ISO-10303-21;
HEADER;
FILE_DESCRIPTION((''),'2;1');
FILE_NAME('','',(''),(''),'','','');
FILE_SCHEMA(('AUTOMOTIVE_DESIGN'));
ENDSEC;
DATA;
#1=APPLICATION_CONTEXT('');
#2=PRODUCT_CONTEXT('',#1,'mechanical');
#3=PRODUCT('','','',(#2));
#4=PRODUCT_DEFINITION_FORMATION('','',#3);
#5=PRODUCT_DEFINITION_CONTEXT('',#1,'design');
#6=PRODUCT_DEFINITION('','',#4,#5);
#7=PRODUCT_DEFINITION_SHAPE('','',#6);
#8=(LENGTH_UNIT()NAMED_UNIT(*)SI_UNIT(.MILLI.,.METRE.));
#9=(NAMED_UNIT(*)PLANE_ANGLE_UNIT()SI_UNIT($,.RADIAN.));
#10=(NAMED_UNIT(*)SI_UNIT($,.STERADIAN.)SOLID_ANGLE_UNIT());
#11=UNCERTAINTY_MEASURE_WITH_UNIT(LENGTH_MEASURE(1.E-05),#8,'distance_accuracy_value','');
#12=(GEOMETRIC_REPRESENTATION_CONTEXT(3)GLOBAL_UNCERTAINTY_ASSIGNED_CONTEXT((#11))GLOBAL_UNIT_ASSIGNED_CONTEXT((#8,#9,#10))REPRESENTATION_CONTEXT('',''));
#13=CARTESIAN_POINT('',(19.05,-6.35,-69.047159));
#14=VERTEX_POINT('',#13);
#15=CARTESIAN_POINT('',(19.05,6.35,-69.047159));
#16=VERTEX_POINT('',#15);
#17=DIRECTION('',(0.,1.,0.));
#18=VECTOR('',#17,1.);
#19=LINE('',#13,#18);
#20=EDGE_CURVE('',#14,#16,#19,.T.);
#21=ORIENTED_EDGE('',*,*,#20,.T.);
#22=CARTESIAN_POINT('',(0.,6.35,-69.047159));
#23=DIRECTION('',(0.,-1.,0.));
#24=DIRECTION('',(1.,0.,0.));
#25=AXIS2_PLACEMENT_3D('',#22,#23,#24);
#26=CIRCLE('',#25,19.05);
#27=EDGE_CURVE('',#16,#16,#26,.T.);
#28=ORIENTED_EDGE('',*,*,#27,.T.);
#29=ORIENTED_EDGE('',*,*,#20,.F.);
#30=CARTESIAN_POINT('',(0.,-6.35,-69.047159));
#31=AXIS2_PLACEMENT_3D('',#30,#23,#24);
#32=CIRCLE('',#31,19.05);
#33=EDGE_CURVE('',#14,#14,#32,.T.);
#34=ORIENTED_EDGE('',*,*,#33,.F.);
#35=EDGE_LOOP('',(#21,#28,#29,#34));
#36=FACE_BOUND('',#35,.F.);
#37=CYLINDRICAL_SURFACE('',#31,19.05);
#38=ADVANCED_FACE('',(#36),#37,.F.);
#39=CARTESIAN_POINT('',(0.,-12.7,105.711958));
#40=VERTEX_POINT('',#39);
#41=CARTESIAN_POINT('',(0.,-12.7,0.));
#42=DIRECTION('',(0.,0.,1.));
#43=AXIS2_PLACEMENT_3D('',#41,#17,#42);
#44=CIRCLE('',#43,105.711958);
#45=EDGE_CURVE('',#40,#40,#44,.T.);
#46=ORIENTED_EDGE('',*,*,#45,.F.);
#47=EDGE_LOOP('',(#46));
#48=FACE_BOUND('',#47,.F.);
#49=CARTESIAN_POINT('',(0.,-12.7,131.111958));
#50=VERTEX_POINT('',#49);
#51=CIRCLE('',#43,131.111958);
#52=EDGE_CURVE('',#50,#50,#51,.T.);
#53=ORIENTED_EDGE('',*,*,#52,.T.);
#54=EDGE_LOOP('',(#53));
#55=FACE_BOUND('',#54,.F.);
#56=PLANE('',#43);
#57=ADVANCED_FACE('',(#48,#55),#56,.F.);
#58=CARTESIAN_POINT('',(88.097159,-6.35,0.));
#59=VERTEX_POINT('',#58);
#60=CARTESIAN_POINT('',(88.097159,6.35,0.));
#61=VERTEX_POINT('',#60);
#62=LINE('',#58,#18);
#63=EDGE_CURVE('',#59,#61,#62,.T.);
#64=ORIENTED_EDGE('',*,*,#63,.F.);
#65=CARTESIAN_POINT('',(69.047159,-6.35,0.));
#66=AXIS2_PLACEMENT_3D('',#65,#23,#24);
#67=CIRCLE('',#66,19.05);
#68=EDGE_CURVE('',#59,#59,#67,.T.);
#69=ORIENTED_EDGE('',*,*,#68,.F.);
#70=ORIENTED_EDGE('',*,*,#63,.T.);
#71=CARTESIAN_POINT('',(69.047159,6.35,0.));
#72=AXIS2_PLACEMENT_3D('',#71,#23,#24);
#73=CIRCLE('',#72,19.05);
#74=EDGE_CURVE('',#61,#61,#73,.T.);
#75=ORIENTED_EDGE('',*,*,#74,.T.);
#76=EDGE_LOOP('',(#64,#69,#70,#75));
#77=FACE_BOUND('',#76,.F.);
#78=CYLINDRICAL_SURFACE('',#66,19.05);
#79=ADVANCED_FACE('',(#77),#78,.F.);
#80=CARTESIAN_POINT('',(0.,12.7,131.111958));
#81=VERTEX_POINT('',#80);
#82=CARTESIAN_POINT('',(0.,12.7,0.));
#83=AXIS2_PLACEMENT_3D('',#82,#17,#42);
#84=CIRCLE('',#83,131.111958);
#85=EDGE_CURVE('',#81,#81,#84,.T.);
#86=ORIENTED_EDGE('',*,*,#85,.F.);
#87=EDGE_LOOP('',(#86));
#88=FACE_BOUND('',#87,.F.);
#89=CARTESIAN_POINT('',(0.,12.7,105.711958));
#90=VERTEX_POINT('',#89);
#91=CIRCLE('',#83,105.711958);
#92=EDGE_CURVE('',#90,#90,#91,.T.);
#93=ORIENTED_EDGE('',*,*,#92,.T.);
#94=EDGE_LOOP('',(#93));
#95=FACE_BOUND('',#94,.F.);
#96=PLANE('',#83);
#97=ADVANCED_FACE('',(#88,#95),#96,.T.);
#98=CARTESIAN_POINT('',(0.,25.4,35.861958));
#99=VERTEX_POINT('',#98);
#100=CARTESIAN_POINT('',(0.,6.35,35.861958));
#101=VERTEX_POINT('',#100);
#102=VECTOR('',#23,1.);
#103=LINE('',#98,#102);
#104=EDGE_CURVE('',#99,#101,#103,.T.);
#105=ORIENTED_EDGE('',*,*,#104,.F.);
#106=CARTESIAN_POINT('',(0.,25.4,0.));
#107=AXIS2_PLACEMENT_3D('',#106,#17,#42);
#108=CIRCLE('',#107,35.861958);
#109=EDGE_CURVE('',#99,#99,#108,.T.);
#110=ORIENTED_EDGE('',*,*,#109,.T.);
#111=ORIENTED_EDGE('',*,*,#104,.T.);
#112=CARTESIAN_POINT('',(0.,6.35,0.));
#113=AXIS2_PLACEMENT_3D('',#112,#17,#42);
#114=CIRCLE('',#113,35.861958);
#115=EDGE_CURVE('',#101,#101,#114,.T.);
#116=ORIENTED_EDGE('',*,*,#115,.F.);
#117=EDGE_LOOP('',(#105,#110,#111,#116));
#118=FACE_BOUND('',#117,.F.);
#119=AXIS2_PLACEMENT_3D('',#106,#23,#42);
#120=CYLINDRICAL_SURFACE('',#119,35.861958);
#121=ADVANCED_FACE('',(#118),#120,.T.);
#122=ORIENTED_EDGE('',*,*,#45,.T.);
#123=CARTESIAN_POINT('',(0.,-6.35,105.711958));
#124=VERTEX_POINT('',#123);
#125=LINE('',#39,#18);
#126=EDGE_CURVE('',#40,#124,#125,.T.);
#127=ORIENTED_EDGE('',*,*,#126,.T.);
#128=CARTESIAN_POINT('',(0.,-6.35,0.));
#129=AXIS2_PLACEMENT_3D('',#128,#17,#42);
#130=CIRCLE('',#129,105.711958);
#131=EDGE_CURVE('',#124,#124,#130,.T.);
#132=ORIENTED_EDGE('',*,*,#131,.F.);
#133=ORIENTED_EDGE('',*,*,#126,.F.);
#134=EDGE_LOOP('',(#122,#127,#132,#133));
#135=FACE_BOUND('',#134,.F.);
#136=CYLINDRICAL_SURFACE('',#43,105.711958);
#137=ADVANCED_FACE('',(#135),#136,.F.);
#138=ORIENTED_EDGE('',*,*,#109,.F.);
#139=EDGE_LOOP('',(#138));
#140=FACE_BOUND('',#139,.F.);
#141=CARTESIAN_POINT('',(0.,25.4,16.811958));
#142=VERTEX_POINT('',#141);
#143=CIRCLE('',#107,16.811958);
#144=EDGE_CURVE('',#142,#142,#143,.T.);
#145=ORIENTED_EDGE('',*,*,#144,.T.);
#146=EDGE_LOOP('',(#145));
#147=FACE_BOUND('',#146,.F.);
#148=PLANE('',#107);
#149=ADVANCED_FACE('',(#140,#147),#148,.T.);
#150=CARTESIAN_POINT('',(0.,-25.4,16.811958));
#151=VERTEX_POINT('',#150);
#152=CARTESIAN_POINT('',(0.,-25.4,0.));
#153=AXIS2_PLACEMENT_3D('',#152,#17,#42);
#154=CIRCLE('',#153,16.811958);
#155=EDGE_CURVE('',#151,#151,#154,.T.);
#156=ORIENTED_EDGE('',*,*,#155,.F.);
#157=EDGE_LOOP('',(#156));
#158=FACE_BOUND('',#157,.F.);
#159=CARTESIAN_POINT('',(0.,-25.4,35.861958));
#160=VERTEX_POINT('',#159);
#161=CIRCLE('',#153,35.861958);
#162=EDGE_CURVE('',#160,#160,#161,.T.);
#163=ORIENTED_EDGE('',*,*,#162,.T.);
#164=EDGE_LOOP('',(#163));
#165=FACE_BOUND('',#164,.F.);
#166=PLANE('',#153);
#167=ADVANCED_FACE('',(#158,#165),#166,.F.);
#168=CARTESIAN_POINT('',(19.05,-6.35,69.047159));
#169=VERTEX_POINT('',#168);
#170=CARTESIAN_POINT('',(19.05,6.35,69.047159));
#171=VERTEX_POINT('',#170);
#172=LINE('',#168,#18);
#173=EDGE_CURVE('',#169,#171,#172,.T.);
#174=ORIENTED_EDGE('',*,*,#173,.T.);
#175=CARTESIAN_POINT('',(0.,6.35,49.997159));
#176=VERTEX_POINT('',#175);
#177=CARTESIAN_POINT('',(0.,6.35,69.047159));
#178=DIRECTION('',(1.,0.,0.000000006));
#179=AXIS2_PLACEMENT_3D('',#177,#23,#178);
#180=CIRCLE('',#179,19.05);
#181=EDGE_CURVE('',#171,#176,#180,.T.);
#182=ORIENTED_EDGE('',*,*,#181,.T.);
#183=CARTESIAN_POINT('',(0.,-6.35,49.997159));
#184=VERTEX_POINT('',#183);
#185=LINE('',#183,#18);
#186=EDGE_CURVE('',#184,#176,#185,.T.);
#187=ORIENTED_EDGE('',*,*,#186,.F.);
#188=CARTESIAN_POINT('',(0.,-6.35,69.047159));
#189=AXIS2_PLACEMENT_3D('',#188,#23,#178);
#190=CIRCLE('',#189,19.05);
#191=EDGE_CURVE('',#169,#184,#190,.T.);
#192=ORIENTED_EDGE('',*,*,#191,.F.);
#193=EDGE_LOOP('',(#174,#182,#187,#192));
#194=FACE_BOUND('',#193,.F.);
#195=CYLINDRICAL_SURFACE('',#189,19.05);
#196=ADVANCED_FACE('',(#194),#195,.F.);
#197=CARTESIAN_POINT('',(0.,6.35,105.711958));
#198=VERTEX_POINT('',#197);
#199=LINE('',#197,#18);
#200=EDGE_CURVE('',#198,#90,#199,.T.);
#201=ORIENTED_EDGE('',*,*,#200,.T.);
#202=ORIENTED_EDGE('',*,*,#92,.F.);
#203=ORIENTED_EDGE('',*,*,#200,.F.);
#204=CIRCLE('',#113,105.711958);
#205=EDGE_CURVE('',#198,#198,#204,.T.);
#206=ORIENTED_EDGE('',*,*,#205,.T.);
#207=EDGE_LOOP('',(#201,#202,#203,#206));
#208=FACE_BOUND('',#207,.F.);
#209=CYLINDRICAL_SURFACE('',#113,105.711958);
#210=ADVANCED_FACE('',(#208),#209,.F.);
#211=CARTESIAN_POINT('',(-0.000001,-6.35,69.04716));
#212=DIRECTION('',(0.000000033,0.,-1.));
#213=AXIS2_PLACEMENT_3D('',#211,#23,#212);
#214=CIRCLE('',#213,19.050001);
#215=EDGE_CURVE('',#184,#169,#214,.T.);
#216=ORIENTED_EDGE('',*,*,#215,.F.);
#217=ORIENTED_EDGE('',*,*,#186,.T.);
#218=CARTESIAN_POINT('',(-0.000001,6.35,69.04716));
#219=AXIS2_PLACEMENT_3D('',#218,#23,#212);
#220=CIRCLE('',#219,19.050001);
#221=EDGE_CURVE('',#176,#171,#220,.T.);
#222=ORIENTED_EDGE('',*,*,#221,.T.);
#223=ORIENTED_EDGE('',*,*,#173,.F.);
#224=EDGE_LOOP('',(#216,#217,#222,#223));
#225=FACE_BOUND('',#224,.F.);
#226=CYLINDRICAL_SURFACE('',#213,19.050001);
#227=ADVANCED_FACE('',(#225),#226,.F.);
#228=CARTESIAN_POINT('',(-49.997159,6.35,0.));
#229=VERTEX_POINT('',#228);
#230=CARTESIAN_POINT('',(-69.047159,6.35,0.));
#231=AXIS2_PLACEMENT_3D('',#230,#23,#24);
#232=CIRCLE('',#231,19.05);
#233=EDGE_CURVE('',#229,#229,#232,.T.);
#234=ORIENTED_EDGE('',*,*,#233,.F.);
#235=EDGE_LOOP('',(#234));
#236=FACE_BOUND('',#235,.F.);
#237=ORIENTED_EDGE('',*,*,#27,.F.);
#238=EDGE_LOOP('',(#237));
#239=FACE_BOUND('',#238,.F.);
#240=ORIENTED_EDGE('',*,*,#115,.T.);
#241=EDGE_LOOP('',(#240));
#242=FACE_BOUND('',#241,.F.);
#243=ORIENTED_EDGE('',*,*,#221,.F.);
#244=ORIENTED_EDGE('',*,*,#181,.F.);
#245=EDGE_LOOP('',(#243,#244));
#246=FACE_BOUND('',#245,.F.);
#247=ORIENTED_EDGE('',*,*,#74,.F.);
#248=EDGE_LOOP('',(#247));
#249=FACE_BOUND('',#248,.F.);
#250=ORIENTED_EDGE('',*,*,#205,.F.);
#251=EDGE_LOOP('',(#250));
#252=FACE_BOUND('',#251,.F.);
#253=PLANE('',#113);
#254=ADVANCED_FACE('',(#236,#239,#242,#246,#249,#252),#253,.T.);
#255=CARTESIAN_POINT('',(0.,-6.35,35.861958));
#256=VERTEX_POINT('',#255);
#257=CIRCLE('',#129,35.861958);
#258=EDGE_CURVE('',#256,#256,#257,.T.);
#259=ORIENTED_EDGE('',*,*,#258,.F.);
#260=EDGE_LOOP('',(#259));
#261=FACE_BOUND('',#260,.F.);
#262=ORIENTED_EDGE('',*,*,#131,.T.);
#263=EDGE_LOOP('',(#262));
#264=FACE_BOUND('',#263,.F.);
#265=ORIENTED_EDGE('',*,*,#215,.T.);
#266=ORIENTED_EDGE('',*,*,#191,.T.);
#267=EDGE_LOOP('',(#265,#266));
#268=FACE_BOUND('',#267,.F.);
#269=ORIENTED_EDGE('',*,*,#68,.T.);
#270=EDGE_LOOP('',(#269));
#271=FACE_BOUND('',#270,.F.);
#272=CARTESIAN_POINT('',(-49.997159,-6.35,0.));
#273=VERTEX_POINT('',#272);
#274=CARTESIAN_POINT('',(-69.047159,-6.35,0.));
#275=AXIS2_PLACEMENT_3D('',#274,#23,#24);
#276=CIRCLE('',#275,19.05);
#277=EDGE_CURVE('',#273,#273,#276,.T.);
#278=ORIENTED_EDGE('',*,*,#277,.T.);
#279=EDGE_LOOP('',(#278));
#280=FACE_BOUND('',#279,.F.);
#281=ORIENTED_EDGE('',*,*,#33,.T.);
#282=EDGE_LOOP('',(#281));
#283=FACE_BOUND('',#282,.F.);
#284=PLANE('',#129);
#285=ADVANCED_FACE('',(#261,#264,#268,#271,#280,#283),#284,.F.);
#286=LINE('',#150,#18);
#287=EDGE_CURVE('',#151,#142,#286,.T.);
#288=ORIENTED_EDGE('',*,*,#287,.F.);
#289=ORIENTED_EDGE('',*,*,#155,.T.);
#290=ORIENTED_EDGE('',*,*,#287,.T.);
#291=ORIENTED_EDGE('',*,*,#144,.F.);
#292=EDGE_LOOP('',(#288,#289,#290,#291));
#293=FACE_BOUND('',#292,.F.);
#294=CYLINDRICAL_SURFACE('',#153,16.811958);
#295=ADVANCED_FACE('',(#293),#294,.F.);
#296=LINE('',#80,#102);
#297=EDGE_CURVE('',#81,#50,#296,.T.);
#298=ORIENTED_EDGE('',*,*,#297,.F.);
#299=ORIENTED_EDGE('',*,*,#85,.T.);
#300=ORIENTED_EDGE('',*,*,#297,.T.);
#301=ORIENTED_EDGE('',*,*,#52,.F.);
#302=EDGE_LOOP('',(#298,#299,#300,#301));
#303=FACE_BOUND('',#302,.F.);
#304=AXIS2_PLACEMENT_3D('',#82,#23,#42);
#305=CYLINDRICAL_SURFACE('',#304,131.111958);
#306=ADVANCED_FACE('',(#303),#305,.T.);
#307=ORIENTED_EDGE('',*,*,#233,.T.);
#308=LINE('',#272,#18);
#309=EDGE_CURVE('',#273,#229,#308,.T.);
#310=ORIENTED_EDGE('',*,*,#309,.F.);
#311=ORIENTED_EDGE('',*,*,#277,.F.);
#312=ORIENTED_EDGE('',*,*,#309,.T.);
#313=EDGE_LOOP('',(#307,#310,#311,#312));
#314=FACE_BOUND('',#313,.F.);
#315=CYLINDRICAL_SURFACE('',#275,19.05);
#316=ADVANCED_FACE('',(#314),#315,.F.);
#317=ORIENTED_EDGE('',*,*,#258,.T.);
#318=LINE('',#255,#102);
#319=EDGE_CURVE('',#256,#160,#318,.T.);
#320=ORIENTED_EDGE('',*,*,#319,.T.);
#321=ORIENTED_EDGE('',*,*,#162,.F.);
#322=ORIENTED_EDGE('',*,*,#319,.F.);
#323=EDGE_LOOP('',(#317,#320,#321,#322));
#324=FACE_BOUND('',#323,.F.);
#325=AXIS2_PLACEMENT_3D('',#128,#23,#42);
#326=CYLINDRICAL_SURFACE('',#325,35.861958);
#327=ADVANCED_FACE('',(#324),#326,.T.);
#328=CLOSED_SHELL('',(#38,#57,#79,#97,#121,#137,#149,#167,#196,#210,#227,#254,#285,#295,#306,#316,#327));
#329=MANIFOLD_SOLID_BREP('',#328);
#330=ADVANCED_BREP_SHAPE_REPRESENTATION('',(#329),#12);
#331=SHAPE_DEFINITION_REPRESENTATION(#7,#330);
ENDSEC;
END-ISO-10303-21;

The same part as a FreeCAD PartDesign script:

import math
import FreeCAD as App
import Part
import Sketcher
Q = App.Units.Quantity

doc = App.newDocument("Part")
body = doc.addObject("PartDesign::Body", "Body")

sketch1 = body.newObject("Sketcher::SketchObject", "Sketch")
sketch1.AttachmentSupport = (doc.getObject("YZ_Plane"), [""])
sketch1.MapMode = "FlatFace"
sketch1.addGeometry([
    Part.LineSegment(App.Vector(-25, 17, 0), App.Vector(25, 17, 0)),
    Part.LineSegment(App.Vector(25, 17, 0), App.Vector(25, 36, 0)),
    Part.LineSegment(App.Vector(25, 36, 0), App.Vector(6, 36, 0)),
    Part.LineSegment(App.Vector(6, 36, 0), App.Vector(6, 106, 0)),
    Part.LineSegment(App.Vector(6, 106, 0), App.Vector(13, 106, 0)),
    Part.LineSegment(App.Vector(13, 106, 0), App.Vector(13, 131, 0)),
    Part.LineSegment(App.Vector(13, 131, 0), App.Vector(-13, 131, 0)),
    Part.LineSegment(App.Vector(-13, 131, 0), App.Vector(-13, 106, 0)),
    Part.LineSegment(App.Vector(-13, 106, 0), App.Vector(-6, 106, 0)),
    Part.LineSegment(App.Vector(-6, 106, 0), App.Vector(-6, 36, 0)),
    Part.LineSegment(App.Vector(-6, 36, 0), App.Vector(-25, 36, 0)),
    Part.LineSegment(App.Vector(-25, 36, 0), App.Vector(-25, 17, 0)),
], False)
sketch1.addConstraint([
    Sketcher.Constraint("Coincident", 0, 2, 1, 1),
    Sketcher.Constraint("Coincident", 1, 2, 2, 1),
    Sketcher.Constraint("Coincident", 2, 2, 3, 1),
    Sketcher.Constraint("Coincident", 3, 2, 4, 1),
    Sketcher.Constraint("Coincident", 4, 2, 5, 1),
    Sketcher.Constraint("Coincident", 5, 2, 6, 1),
    Sketcher.Constraint("Coincident", 6, 2, 7, 1),
    Sketcher.Constraint("Coincident", 7, 2, 8, 1),
    Sketcher.Constraint("Coincident", 8, 2, 9, 1),
    Sketcher.Constraint("Coincident", 9, 2, 10, 1),
    Sketcher.Constraint("Coincident", 10, 2, 11, 1),
    Sketcher.Constraint("Coincident", 11, 2, 0, 1),
    Sketcher.Constraint("Horizontal", 0),
    Sketcher.Constraint("Vertical", 1),
    Sketcher.Constraint("Horizontal", 2),
    Sketcher.Constraint("Vertical", 3),
    Sketcher.Constraint("Horizontal", 4),
    Sketcher.Constraint("Vertical", 5),
    Sketcher.Constraint("Horizontal", 6),
    Sketcher.Constraint("Vertical", 7),
    Sketcher.Constraint("Horizontal", 8),
    Sketcher.Constraint("Vertical", 9),
    Sketcher.Constraint("Horizontal", 10),
    Sketcher.Constraint("Vertical", 11),
    Sketcher.Constraint("Symmetric", 4, 2, 7, 2, -2),
    Sketcher.Constraint("Symmetric", 2, 2, 9, 2, -2),
    Sketcher.Constraint("Equal", 2, 10),
    Sketcher.Constraint("Equal", 10, 1),
    Sketcher.Constraint("Equal", 6, 5),
    Sketcher.Constraint("DistanceX", 0, 1, 0, 2, Q("2 in")),
    Sketcher.Constraint("DistanceX", 6, 2, 6, 1, Q("1 in")),
    Sketcher.Constraint("DistanceX", 2, 2, 2, 1, Q("0.75 in")),
    Sketcher.Constraint("DistanceY", 3, 1, 3, 2, Q("2.75 in")),
    Sketcher.Constraint("DistanceY", -1, 1, 0, 2, Q("16.811958 mm")),
])
revolution = body.newObject("PartDesign::Revolution", "Revolution")
revolution.Profile = sketch1
revolution.ReferenceAxis = (sketch1, ["H_Axis"])
revolution.Angle = 360

sketch2 = body.newObject("Sketcher::SketchObject", "Sketch001")
sketch2.AttachmentSupport = (doc.getObject("XZ_Plane"), [""])
sketch2.MapMode = "FlatFace"
sketch2.AttachmentOffset = App.Placement(App.Vector(0, 0, 0.25 * 25.4), App.Rotation())
sketch2.addGeometry([
    Part.ArcOfCircle(Part.Circle(App.Vector(0, 69, 0), App.Vector(0, 0, 1), 19), math.radians(0), math.radians(270)),
    Part.ArcOfCircle(Part.Circle(App.Vector(0, 69, 0), App.Vector(0, 0, 1), 19), math.radians(-90), math.radians(0)),
    Part.Circle(App.Vector(69, 0, 0), App.Vector(0, 0, 1), 19),
    Part.Circle(App.Vector(0, -69, 0), App.Vector(0, 0, 1), 19),
    Part.Circle(App.Vector(-69, 0, 0), App.Vector(0, 0, 1), 19),
], False)
sketch2.addConstraint([
    Sketcher.Constraint("Tangent", 0, 1, 1, 2),
    Sketcher.Constraint("Coincident", 1, 1, 0, 2),
    Sketcher.Constraint("Equal", 1, 2),
    Sketcher.Constraint("Equal", 2, 3),
    Sketcher.Constraint("Equal", 3, 4),
    Sketcher.Constraint("Symmetric", 0, 3, 3, 3, -1, 1),
    Sketcher.Constraint("Symmetric", 2, 3, 4, 3, -1, 1),
    Sketcher.Constraint("PointOnObject", 0, 3, -2),
    Sketcher.Constraint("PointOnObject", 2, 3, -1),
    Sketcher.Constraint("PointOnObject", 1, 1, -2),
    Sketcher.Constraint("Horizontal", 1, 3, 0, 1),
    Sketcher.Constraint("Diameter", 2, Q("1.5 in")),
    Sketcher.Constraint("DistanceY", -1, 1, 0, 3, Q("69.047159 mm")),
    Sketcher.Constraint("DistanceX", -1, 1, 2, 3, Q("69.047159 mm")),
])
pocket1 = body.newObject("PartDesign::Pocket", "Pocket")
pocket1.Profile = sketch2
pocket1.Length = Q("1 in")

doc.recompute()
